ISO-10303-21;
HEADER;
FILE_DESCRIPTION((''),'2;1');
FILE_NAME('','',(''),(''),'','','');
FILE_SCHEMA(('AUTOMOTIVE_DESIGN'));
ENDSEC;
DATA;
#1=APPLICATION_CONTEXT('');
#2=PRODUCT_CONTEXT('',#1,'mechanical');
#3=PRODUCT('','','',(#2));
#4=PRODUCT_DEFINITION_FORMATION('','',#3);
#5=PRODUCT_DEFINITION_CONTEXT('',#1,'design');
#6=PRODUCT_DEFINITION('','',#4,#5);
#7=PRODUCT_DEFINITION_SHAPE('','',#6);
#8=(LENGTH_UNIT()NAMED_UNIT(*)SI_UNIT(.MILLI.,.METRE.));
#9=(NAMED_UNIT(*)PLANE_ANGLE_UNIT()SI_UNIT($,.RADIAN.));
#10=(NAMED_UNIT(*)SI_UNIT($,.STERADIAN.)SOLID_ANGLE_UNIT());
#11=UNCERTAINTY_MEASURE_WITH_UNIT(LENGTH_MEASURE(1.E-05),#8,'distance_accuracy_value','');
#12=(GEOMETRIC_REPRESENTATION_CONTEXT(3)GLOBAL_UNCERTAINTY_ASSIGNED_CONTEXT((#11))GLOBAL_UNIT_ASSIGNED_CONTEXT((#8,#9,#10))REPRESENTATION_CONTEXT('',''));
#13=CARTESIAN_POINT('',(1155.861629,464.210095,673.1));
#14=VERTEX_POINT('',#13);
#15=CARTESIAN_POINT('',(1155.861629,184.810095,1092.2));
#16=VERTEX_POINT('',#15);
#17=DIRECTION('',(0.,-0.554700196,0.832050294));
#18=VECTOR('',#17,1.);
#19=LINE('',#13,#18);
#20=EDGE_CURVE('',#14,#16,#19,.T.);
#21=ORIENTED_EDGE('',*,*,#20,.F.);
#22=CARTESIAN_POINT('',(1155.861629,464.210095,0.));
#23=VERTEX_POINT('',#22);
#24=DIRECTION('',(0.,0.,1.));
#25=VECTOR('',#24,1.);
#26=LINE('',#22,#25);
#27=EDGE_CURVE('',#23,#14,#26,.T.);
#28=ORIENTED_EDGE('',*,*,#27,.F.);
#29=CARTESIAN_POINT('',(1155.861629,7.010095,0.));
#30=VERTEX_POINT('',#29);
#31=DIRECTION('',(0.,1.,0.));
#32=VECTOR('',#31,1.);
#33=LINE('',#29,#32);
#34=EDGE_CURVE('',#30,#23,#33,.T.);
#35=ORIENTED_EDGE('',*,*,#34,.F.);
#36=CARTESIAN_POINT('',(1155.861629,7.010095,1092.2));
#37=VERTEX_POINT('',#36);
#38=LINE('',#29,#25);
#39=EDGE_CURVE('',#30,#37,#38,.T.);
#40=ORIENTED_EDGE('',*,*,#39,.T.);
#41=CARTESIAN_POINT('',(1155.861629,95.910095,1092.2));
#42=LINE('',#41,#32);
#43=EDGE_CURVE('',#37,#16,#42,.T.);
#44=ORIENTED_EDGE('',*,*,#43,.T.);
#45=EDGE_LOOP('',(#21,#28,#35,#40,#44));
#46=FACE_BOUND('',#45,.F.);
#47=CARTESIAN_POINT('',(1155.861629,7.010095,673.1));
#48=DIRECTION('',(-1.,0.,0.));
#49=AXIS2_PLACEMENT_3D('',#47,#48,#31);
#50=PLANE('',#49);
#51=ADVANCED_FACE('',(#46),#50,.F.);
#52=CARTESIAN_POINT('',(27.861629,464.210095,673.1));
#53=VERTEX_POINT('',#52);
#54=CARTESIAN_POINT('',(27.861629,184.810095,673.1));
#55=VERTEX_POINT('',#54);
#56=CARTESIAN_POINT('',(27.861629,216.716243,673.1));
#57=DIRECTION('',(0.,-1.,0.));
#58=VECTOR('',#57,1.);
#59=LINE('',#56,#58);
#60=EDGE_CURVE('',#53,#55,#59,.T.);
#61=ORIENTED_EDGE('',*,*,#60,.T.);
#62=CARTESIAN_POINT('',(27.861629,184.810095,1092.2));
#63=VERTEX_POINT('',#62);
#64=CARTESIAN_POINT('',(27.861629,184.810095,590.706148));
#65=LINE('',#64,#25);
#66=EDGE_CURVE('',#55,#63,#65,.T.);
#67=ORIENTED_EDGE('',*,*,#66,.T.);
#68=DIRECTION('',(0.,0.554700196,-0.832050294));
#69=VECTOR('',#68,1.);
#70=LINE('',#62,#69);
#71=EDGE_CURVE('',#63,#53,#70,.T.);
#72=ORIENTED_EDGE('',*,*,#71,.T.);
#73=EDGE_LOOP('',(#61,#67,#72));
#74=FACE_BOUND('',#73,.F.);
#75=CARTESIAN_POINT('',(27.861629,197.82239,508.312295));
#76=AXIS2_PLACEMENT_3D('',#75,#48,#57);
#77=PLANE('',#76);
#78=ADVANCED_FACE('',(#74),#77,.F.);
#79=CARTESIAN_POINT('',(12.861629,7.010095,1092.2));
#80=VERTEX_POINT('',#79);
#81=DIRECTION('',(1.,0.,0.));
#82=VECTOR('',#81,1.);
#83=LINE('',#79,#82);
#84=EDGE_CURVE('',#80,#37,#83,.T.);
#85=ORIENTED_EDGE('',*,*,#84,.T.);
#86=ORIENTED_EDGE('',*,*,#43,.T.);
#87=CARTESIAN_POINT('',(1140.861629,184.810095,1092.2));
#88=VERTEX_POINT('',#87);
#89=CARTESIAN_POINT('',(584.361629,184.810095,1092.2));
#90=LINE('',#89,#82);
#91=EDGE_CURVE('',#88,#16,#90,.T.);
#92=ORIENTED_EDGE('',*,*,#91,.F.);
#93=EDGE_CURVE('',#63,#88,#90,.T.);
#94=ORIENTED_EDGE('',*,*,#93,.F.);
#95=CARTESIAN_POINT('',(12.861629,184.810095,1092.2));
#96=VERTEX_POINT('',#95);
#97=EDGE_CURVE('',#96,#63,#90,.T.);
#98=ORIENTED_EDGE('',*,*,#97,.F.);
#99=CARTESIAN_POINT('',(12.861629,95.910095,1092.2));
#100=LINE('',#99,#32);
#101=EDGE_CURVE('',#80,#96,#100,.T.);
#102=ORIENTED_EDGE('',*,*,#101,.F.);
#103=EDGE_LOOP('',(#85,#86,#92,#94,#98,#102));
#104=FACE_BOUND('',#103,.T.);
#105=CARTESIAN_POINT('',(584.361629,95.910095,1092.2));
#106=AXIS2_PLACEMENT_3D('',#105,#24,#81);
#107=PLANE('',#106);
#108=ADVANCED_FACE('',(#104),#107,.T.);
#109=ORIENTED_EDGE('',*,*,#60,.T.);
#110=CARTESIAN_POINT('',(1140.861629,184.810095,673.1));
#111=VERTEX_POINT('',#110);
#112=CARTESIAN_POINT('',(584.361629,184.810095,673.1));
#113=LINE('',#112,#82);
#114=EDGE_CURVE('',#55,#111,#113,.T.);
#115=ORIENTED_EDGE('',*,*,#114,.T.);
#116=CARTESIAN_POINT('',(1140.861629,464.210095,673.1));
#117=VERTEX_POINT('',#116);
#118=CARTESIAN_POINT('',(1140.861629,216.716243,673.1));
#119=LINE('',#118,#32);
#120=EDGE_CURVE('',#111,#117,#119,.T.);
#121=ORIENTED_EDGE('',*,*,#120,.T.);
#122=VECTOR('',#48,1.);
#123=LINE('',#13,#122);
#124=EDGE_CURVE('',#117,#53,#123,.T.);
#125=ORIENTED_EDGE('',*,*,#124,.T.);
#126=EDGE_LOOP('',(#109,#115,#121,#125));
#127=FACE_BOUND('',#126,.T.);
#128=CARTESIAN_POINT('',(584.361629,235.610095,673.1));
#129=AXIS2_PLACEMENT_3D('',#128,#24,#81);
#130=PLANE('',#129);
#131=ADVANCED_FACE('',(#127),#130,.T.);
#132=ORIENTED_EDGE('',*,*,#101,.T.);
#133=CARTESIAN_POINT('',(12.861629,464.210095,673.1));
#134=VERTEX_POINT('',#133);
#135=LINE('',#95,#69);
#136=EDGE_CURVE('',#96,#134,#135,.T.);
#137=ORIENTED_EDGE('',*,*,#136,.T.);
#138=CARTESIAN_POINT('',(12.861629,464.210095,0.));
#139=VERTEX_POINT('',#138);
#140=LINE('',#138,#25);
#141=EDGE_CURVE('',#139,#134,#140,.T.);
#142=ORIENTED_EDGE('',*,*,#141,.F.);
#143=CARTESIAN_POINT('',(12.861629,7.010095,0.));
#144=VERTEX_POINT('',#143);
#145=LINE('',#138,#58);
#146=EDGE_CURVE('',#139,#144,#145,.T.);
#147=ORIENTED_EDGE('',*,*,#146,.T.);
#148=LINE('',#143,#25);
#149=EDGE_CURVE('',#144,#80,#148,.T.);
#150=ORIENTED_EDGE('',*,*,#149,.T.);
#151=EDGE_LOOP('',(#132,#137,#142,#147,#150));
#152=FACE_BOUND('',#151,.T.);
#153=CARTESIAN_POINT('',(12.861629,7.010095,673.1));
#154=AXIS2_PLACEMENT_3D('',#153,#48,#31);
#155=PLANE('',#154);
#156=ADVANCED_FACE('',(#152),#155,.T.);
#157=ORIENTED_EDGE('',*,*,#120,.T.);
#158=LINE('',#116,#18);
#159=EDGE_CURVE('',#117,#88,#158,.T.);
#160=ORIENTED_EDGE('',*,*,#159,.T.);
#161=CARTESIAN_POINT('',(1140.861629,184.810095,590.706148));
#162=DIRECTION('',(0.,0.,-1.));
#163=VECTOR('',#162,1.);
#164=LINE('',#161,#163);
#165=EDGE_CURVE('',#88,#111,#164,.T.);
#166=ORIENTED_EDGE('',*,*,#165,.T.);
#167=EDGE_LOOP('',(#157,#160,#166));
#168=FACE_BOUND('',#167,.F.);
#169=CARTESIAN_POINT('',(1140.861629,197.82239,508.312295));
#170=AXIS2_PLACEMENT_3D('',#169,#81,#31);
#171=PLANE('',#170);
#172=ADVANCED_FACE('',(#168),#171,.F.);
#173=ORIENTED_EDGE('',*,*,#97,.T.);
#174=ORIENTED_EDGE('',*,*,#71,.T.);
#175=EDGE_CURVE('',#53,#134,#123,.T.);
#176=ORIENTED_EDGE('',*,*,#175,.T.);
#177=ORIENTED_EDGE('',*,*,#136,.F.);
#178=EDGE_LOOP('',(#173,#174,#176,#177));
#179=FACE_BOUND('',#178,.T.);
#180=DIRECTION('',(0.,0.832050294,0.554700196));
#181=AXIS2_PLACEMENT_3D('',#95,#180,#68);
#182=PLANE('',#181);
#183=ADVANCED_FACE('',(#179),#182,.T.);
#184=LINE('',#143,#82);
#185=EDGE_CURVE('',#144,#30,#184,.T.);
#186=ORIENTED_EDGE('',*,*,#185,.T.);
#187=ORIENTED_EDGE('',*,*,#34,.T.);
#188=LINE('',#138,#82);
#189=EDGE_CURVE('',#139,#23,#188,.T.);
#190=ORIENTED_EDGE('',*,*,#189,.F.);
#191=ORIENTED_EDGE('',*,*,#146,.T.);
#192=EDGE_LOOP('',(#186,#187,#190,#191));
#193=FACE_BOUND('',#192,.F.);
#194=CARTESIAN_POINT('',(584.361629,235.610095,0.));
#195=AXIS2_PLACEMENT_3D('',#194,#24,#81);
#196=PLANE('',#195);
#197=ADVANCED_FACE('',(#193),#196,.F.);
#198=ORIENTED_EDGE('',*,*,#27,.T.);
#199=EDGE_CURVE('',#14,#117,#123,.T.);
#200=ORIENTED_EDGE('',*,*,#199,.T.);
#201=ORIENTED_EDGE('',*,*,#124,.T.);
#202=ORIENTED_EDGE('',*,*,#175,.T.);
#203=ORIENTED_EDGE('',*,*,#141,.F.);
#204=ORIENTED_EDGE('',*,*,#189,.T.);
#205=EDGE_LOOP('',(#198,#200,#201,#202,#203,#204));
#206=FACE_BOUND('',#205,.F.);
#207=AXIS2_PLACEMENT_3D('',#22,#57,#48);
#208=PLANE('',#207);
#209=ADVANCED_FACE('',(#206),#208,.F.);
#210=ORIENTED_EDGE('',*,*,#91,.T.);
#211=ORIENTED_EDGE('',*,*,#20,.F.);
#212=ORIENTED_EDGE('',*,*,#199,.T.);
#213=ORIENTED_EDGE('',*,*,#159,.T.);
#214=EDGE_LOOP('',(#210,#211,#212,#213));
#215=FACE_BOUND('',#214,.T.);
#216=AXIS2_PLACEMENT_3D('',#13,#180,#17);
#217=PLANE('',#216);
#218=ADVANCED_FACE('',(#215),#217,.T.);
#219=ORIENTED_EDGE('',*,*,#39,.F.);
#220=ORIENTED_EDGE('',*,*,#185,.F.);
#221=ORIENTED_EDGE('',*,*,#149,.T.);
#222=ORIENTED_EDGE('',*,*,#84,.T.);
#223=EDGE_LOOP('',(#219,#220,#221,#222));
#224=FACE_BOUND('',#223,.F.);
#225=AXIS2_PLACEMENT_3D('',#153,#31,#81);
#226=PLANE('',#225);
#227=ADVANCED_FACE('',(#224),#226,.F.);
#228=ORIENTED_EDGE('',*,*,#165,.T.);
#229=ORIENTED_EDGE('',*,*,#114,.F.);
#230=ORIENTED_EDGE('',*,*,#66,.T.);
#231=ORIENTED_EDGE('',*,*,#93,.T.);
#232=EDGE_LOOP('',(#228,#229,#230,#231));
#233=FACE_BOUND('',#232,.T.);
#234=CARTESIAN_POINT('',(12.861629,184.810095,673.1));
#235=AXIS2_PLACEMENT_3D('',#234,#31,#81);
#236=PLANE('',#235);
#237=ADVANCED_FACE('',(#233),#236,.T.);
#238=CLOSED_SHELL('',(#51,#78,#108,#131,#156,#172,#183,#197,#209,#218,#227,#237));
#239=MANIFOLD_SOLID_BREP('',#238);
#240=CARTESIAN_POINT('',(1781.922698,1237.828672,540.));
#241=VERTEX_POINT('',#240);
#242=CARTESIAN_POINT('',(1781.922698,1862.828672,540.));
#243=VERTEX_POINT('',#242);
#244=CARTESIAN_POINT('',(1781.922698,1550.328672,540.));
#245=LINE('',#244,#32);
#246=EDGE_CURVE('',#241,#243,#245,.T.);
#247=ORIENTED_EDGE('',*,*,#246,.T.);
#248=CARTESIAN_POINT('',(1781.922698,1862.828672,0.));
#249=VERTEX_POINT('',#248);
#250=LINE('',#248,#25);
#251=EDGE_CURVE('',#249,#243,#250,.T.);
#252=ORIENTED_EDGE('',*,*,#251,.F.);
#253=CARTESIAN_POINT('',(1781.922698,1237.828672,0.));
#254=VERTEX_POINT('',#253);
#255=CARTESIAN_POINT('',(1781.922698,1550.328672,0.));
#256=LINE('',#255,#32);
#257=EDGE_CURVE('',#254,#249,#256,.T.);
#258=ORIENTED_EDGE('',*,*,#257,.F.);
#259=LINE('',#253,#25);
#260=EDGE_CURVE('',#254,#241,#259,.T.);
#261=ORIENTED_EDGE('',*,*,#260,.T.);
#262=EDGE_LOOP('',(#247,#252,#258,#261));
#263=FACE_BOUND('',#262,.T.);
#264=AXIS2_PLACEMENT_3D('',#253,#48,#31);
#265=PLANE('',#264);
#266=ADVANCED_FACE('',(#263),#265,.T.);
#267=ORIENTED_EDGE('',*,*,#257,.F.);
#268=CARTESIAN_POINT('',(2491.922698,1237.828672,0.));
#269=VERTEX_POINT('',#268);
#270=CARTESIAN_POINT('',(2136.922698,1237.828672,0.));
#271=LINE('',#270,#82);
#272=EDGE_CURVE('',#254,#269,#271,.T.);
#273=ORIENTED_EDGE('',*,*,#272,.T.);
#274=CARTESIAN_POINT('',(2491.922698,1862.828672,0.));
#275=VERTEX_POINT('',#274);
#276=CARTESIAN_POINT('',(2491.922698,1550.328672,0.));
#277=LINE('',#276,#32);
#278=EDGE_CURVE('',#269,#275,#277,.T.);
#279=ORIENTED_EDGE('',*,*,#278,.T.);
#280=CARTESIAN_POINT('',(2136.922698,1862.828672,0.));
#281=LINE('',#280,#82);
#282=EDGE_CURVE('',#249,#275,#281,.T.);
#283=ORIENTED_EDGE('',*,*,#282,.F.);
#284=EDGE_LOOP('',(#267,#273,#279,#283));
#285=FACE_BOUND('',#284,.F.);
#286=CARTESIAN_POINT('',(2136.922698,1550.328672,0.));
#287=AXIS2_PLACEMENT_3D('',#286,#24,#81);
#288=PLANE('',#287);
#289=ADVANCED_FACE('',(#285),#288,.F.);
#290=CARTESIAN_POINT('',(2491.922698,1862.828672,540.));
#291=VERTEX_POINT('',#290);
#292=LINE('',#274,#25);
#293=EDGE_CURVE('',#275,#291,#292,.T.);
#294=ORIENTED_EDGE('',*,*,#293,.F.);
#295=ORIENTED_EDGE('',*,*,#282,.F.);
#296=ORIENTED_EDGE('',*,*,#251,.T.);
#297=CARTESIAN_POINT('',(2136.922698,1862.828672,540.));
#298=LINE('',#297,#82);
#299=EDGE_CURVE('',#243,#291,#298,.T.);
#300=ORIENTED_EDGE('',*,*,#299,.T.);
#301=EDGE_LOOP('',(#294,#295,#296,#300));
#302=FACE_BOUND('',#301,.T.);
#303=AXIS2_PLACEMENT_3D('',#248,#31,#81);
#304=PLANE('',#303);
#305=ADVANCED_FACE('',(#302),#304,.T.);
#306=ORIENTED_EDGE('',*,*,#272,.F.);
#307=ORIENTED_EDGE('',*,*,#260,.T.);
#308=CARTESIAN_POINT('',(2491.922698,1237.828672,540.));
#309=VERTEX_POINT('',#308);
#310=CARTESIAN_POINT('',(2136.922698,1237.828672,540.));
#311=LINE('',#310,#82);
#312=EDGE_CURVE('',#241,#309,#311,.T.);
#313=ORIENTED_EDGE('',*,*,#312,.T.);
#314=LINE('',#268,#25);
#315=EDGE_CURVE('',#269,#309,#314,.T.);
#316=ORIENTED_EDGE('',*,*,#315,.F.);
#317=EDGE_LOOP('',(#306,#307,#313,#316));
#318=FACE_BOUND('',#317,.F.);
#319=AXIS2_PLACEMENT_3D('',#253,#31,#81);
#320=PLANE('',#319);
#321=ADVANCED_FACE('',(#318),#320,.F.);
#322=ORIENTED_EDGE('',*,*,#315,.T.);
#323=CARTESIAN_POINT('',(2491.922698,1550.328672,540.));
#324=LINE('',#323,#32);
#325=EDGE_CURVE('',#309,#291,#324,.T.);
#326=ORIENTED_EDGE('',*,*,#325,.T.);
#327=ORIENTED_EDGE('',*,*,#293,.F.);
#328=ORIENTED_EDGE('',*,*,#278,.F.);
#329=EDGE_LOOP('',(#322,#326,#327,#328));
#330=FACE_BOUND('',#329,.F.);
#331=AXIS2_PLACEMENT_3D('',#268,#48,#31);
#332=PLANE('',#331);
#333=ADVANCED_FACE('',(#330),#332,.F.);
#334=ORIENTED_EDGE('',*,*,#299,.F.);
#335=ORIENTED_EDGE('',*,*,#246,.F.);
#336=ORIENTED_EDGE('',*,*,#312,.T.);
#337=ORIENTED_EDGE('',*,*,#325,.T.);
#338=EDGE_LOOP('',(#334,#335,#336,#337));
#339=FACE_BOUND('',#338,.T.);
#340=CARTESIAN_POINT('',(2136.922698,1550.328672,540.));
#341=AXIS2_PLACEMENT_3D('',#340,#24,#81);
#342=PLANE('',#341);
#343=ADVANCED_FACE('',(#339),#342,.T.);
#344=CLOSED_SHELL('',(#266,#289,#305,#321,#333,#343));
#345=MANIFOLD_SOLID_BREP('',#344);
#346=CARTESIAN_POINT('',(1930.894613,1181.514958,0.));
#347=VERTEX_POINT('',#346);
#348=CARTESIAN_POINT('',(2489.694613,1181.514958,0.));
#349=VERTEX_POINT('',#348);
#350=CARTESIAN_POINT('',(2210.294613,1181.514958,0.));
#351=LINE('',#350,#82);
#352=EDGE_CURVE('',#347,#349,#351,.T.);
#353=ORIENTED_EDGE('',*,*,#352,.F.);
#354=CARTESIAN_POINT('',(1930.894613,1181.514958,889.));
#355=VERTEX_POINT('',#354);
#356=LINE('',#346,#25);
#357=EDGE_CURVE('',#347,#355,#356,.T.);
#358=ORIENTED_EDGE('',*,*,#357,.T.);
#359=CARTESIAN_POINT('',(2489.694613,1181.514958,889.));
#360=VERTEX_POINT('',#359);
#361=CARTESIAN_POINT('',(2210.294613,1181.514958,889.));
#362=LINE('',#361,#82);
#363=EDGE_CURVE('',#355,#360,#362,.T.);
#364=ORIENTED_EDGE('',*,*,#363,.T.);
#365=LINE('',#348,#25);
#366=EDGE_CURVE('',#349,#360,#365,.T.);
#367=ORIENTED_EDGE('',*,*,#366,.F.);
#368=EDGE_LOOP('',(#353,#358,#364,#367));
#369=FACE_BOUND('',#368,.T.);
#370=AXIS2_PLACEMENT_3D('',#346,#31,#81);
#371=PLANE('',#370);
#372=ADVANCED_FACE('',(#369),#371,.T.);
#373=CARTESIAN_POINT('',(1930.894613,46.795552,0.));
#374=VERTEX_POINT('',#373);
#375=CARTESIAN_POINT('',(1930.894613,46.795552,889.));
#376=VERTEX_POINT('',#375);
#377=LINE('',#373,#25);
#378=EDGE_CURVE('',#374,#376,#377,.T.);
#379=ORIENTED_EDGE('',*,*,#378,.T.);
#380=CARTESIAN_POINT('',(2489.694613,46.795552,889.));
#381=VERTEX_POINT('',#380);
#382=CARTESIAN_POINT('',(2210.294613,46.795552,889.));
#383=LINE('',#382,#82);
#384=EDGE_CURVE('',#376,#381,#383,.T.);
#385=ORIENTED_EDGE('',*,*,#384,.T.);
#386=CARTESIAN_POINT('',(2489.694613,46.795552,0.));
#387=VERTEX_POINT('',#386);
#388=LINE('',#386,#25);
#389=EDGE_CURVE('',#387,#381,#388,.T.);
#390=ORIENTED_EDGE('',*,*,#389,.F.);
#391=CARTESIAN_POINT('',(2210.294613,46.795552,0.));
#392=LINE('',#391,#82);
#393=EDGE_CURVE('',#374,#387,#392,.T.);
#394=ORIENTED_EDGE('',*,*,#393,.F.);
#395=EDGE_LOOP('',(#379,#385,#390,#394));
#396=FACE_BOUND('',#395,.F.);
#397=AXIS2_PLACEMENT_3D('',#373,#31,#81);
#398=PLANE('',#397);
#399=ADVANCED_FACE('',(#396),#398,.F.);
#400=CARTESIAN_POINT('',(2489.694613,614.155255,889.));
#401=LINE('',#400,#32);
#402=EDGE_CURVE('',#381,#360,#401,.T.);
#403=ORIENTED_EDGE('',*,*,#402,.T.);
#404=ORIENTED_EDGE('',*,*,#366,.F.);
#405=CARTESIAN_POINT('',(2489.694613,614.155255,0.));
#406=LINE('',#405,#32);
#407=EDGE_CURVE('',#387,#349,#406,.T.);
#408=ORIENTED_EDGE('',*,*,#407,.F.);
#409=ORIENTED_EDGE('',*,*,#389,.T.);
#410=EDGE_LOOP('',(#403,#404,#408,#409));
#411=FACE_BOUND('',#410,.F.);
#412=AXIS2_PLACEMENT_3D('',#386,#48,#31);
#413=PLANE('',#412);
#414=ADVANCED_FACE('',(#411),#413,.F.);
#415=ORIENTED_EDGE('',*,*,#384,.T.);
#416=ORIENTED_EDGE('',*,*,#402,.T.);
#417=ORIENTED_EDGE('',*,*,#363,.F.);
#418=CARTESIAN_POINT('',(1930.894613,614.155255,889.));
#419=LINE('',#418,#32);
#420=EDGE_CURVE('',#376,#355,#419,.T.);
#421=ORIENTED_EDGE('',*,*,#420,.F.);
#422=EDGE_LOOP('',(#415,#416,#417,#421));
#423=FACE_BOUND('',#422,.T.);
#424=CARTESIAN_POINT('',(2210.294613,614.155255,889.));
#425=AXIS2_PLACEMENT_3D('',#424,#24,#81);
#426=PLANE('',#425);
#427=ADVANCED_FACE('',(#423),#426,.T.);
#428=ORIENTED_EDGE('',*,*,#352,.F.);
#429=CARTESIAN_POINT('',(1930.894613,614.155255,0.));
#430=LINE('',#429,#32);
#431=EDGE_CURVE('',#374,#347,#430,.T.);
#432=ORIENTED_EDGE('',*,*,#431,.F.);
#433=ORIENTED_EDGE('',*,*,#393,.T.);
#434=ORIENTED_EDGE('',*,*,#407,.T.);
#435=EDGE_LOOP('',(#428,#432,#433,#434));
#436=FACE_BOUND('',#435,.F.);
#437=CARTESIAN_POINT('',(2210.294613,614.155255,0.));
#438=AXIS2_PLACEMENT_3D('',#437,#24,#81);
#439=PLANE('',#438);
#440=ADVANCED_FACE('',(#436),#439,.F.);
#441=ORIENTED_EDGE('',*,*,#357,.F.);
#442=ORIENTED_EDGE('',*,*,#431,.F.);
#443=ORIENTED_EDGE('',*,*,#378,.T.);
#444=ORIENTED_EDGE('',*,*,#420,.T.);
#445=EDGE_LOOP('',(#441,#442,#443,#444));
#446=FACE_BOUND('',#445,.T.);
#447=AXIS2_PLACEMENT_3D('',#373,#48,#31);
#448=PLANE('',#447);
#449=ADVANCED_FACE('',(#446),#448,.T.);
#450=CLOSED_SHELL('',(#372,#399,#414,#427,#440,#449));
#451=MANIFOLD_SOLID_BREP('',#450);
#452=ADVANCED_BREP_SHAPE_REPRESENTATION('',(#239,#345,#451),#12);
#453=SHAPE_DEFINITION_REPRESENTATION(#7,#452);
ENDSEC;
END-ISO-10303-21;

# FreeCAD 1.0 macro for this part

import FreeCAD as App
import Part
import Sketcher
from FreeCAD import Vector
Q = App.Units.Quantity


def add_polygon(sketch, points):
    """Adds a closed chain of lines whose ends are joined by coincident constraints."""
    first, n = sketch.GeometryCount, len(points)
    for a, b in zip(points, points[1:] + points[:1]):
        sketch.addGeometry(Part.LineSegment(App.Vector(*a, 0), App.Vector(*b, 0)), False)
    for i in range(n):
        sketch.addConstraint(Sketcher.Constraint("Coincident", first + i, 2, first + (i + 1) % n, 1))

doc = App.newDocument("Part")
body = doc.addObject("PartDesign::Body", "Body")

sketch1 = body.newObject("Sketcher::SketchObject", "Sketch")
sketch1.AttachmentSupport = (doc.getObject("XY_Plane"), [""])
sketch1.MapMode = "FlatFace"
add_polygon(sketch1, [(1931, 1182), (1931, 47), (2490, 47), (2490, 1182)])
sketch1.addConstraint([
    Sketcher.Constraint("Vertical", 0),
    Sketcher.Constraint("Horizontal", 1),
    Sketcher.Constraint("Vertical", 2),
    Sketcher.Constraint("Horizontal", 3),
    Sketcher.Constraint("DistanceX", 1, 1, 1, 2, Q("22 in")),
    Sketcher.Constraint("DistanceY", 0, 2, 0, 1, Q("1134.719407 mm")),
    Sketcher.Constraint("DistanceY", -1, 1, 0, 2, Q("46.795552 mm")),
    Sketcher.Constraint("DistanceX", -1, 1, 0, 2, Q("1930.894613 mm")),
])
pad1 = body.newObject("PartDesign::Pad", "Pad")
pad1.Profile = sketch1
pad1.Length = Q("35 in")
body2 = doc.addObject("PartDesign::Body", "Body001")

sketch2 = body2.newObject("Sketcher::SketchObject", "Sketch001")
sketch2.AttachmentSupport = (doc.getObject("XY_Plane001"), [""])
sketch2.MapMode = "FlatFace"
add_polygon(sketch2, [(13, 464), (13, 7), (1156, 7), (1156, 464)])
sketch2.addConstraint([
    Sketcher.Constraint("Vertical", 0),
    Sketcher.Constraint("Horizontal", 1),
    Sketcher.Constraint("Vertical", 2),
    Sketcher.Constraint("Horizontal", 3),
    Sketcher.Constraint("DistanceX", 1, 1, 1, 2, Q("45 in")),
    Sketcher.Constraint("DistanceY", 0, 2, 0, 1, Q("18 in")),
    Sketcher.Constraint("DistanceX", -1, 1, 0, 2, Q("12.861629 mm")),
    Sketcher.Constraint("DistanceY", -1, 1, 0, 2, Q("7.010095 mm")),
])
pad2 = body2.newObject("PartDesign::Pad", "Pad001")
pad2.Profile = sketch2
pad2.Length = Q("26.5 in")

sketch3 = body2.newObject("Sketcher::SketchObject", "Sketch002")
sketch3.AttachmentSupport = (doc.getObject("XY_Plane001"), [""])
sketch3.MapMode = "FlatFace"
sketch3.AttachmentOffset = App.Placement(Vector(0, 0, 26.5 * 25.4), App.Rotation())
add_polygon(sketch3, [(13, 185), (13, 7), (1156, 7), (1156, 185)])
sketch3.addConstraint([
    Sketcher.Constraint("Vertical", 0),
    Sketcher.Constraint("Horizontal", 1),
    Sketcher.Constraint("Vertical", 2),
    Sketcher.Constraint("Horizontal", 3),
    Sketcher.Constraint("DistanceX", 1, 1, 1, 2, Q("45 in")),
    Sketcher.Constraint("DistanceY", 0, 2, 0, 1, Q("7 in")),
    Sketcher.Constraint("DistanceX", -1, 1, 0, 2, Q("12.861629 mm")),
    Sketcher.Constraint("DistanceY", -1, 1, 0, 2, Q("7.010095 mm")),
])
pad3 = body2.newObject("PartDesign::Pad", "Pad002")
pad3.Profile = sketch3
pad3.Length = Q("16.5 in")

sketch4 = body2.newObject("Sketcher::SketchObject", "Sketch003")
sketch4.AttachmentSupport = (doc.getObject("YZ_Plane001"), [""])
sketch4.MapMode = "FlatFace"
sketch4.AttachmentOffset = App.Placement(Vector(0, 0, 1155.861629), App.Rotation())
add_polygon(sketch4, [(185, 1092), (7, 1092), (7, 0), (464, 0), (464, 673)])
sketch4.addConstraint([
    Sketcher.Constraint("Horizontal", 0),
    Sketcher.Constraint("Vertical", 1),
    Sketcher.Constraint("Horizontal", 2),
    Sketcher.Constraint("Vertical", 3),
    Sketcher.Constraint("PointOnObject", 1, 2, -1),
    Sketcher.Constraint("DistanceX", 0, 2, 0, 1, Q("7 in")),
    Sketcher.Constraint("DistanceX", 2, 1, 2, 2, Q("18 in")),
    Sketcher.Constraint("DistanceY", 1, 2, 1, 1, Q("43 in")),
    Sketcher.Constraint("DistanceY", 3, 1, 3, 2, Q("26.5 in")),
    Sketcher.Constraint("DistanceX", -1, 1, 0, 2, Q("7.010095 mm")),
])
pad4 = body2.newObject("PartDesign::Pad", "Pad003")
pad4.Profile = sketch4
pad4.Length = 15
pad4.Reversed = True

sketch5 = body2.newObject("Sketcher::SketchObject", "Sketch004")
sketch5.AttachmentSupport = (doc.getObject("YZ_Plane001"), [""])
sketch5.MapMode = "FlatFace"
sketch5.AttachmentOffset = App.Placement(Vector(0, 0, 12.861629), App.Rotation())
add_polygon(sketch5, [(464, 673), (464, 0), (7, 0), (7, 1092), (185, 1092)])
sketch5.addConstraint([
    Sketcher.Constraint("Vertical", 0),
    Sketcher.Constraint("Horizontal", 1),
    Sketcher.Constraint("Vertical", 2),
    Sketcher.Constraint("Horizontal", 3),
    Sketcher.Constraint("PointOnObject", 0, 2, -1),
    Sketcher.Constraint("DistanceX", 1, 2, 1, 1, Q("18 in")),
    Sketcher.Constraint("DistanceX", 3, 1, 3, 2, Q("7 in")),
    Sketcher.Constraint("DistanceY", 2, 1, 2, 2, Q("43 in")),
    Sketcher.Constraint("DistanceY", 0, 2, 0, 1, Q("26.5 in")),
    Sketcher.Constraint("DistanceX", -1, 1, 0, 2, Q("464.210095 mm")),
])
pad5 = body2.newObject("PartDesign::Pad", "Pad004")
pad5.Profile = sketch5
pad5.Length = 15
body3 = doc.addObject("PartDesign::Body", "Body002")

sketch6 = body3.newObject("Sketcher::SketchObject", "Sketch005")
sketch6.AttachmentSupport = (doc.getObject("XY_Plane002"), [""])
sketch6.MapMode = "FlatFace"
add_polygon(sketch6, [(1782, 1863), (1782, 1238), (2492, 1238), (2492, 1863)])
sketch6.addConstraint([
    Sketcher.Constraint("Vertical", 0),
    Sketcher.Constraint("Horizontal", 1),
    Sketcher.Constraint("Vertical", 2),
    Sketcher.Constraint("Horizontal", 3),
    Sketcher.Constraint("DistanceX", 1, 1, 1, 2, Q("710 mm")),
    Sketcher.Constraint("DistanceY", 0, 2, 0, 1, Q("625 mm")),
    Sketcher.Constraint("DistanceX", -1, 1, 0, 2, Q("1781.922698 mm")),
    Sketcher.Constraint("DistanceY", -1, 1, 0, 2, Q("1237.828672 mm")),
])
pad6 = body3.newObject("PartDesign::Pad", "Pad005")
pad6.Profile = sketch6
pad6.Length = 540

doc.recompute()
